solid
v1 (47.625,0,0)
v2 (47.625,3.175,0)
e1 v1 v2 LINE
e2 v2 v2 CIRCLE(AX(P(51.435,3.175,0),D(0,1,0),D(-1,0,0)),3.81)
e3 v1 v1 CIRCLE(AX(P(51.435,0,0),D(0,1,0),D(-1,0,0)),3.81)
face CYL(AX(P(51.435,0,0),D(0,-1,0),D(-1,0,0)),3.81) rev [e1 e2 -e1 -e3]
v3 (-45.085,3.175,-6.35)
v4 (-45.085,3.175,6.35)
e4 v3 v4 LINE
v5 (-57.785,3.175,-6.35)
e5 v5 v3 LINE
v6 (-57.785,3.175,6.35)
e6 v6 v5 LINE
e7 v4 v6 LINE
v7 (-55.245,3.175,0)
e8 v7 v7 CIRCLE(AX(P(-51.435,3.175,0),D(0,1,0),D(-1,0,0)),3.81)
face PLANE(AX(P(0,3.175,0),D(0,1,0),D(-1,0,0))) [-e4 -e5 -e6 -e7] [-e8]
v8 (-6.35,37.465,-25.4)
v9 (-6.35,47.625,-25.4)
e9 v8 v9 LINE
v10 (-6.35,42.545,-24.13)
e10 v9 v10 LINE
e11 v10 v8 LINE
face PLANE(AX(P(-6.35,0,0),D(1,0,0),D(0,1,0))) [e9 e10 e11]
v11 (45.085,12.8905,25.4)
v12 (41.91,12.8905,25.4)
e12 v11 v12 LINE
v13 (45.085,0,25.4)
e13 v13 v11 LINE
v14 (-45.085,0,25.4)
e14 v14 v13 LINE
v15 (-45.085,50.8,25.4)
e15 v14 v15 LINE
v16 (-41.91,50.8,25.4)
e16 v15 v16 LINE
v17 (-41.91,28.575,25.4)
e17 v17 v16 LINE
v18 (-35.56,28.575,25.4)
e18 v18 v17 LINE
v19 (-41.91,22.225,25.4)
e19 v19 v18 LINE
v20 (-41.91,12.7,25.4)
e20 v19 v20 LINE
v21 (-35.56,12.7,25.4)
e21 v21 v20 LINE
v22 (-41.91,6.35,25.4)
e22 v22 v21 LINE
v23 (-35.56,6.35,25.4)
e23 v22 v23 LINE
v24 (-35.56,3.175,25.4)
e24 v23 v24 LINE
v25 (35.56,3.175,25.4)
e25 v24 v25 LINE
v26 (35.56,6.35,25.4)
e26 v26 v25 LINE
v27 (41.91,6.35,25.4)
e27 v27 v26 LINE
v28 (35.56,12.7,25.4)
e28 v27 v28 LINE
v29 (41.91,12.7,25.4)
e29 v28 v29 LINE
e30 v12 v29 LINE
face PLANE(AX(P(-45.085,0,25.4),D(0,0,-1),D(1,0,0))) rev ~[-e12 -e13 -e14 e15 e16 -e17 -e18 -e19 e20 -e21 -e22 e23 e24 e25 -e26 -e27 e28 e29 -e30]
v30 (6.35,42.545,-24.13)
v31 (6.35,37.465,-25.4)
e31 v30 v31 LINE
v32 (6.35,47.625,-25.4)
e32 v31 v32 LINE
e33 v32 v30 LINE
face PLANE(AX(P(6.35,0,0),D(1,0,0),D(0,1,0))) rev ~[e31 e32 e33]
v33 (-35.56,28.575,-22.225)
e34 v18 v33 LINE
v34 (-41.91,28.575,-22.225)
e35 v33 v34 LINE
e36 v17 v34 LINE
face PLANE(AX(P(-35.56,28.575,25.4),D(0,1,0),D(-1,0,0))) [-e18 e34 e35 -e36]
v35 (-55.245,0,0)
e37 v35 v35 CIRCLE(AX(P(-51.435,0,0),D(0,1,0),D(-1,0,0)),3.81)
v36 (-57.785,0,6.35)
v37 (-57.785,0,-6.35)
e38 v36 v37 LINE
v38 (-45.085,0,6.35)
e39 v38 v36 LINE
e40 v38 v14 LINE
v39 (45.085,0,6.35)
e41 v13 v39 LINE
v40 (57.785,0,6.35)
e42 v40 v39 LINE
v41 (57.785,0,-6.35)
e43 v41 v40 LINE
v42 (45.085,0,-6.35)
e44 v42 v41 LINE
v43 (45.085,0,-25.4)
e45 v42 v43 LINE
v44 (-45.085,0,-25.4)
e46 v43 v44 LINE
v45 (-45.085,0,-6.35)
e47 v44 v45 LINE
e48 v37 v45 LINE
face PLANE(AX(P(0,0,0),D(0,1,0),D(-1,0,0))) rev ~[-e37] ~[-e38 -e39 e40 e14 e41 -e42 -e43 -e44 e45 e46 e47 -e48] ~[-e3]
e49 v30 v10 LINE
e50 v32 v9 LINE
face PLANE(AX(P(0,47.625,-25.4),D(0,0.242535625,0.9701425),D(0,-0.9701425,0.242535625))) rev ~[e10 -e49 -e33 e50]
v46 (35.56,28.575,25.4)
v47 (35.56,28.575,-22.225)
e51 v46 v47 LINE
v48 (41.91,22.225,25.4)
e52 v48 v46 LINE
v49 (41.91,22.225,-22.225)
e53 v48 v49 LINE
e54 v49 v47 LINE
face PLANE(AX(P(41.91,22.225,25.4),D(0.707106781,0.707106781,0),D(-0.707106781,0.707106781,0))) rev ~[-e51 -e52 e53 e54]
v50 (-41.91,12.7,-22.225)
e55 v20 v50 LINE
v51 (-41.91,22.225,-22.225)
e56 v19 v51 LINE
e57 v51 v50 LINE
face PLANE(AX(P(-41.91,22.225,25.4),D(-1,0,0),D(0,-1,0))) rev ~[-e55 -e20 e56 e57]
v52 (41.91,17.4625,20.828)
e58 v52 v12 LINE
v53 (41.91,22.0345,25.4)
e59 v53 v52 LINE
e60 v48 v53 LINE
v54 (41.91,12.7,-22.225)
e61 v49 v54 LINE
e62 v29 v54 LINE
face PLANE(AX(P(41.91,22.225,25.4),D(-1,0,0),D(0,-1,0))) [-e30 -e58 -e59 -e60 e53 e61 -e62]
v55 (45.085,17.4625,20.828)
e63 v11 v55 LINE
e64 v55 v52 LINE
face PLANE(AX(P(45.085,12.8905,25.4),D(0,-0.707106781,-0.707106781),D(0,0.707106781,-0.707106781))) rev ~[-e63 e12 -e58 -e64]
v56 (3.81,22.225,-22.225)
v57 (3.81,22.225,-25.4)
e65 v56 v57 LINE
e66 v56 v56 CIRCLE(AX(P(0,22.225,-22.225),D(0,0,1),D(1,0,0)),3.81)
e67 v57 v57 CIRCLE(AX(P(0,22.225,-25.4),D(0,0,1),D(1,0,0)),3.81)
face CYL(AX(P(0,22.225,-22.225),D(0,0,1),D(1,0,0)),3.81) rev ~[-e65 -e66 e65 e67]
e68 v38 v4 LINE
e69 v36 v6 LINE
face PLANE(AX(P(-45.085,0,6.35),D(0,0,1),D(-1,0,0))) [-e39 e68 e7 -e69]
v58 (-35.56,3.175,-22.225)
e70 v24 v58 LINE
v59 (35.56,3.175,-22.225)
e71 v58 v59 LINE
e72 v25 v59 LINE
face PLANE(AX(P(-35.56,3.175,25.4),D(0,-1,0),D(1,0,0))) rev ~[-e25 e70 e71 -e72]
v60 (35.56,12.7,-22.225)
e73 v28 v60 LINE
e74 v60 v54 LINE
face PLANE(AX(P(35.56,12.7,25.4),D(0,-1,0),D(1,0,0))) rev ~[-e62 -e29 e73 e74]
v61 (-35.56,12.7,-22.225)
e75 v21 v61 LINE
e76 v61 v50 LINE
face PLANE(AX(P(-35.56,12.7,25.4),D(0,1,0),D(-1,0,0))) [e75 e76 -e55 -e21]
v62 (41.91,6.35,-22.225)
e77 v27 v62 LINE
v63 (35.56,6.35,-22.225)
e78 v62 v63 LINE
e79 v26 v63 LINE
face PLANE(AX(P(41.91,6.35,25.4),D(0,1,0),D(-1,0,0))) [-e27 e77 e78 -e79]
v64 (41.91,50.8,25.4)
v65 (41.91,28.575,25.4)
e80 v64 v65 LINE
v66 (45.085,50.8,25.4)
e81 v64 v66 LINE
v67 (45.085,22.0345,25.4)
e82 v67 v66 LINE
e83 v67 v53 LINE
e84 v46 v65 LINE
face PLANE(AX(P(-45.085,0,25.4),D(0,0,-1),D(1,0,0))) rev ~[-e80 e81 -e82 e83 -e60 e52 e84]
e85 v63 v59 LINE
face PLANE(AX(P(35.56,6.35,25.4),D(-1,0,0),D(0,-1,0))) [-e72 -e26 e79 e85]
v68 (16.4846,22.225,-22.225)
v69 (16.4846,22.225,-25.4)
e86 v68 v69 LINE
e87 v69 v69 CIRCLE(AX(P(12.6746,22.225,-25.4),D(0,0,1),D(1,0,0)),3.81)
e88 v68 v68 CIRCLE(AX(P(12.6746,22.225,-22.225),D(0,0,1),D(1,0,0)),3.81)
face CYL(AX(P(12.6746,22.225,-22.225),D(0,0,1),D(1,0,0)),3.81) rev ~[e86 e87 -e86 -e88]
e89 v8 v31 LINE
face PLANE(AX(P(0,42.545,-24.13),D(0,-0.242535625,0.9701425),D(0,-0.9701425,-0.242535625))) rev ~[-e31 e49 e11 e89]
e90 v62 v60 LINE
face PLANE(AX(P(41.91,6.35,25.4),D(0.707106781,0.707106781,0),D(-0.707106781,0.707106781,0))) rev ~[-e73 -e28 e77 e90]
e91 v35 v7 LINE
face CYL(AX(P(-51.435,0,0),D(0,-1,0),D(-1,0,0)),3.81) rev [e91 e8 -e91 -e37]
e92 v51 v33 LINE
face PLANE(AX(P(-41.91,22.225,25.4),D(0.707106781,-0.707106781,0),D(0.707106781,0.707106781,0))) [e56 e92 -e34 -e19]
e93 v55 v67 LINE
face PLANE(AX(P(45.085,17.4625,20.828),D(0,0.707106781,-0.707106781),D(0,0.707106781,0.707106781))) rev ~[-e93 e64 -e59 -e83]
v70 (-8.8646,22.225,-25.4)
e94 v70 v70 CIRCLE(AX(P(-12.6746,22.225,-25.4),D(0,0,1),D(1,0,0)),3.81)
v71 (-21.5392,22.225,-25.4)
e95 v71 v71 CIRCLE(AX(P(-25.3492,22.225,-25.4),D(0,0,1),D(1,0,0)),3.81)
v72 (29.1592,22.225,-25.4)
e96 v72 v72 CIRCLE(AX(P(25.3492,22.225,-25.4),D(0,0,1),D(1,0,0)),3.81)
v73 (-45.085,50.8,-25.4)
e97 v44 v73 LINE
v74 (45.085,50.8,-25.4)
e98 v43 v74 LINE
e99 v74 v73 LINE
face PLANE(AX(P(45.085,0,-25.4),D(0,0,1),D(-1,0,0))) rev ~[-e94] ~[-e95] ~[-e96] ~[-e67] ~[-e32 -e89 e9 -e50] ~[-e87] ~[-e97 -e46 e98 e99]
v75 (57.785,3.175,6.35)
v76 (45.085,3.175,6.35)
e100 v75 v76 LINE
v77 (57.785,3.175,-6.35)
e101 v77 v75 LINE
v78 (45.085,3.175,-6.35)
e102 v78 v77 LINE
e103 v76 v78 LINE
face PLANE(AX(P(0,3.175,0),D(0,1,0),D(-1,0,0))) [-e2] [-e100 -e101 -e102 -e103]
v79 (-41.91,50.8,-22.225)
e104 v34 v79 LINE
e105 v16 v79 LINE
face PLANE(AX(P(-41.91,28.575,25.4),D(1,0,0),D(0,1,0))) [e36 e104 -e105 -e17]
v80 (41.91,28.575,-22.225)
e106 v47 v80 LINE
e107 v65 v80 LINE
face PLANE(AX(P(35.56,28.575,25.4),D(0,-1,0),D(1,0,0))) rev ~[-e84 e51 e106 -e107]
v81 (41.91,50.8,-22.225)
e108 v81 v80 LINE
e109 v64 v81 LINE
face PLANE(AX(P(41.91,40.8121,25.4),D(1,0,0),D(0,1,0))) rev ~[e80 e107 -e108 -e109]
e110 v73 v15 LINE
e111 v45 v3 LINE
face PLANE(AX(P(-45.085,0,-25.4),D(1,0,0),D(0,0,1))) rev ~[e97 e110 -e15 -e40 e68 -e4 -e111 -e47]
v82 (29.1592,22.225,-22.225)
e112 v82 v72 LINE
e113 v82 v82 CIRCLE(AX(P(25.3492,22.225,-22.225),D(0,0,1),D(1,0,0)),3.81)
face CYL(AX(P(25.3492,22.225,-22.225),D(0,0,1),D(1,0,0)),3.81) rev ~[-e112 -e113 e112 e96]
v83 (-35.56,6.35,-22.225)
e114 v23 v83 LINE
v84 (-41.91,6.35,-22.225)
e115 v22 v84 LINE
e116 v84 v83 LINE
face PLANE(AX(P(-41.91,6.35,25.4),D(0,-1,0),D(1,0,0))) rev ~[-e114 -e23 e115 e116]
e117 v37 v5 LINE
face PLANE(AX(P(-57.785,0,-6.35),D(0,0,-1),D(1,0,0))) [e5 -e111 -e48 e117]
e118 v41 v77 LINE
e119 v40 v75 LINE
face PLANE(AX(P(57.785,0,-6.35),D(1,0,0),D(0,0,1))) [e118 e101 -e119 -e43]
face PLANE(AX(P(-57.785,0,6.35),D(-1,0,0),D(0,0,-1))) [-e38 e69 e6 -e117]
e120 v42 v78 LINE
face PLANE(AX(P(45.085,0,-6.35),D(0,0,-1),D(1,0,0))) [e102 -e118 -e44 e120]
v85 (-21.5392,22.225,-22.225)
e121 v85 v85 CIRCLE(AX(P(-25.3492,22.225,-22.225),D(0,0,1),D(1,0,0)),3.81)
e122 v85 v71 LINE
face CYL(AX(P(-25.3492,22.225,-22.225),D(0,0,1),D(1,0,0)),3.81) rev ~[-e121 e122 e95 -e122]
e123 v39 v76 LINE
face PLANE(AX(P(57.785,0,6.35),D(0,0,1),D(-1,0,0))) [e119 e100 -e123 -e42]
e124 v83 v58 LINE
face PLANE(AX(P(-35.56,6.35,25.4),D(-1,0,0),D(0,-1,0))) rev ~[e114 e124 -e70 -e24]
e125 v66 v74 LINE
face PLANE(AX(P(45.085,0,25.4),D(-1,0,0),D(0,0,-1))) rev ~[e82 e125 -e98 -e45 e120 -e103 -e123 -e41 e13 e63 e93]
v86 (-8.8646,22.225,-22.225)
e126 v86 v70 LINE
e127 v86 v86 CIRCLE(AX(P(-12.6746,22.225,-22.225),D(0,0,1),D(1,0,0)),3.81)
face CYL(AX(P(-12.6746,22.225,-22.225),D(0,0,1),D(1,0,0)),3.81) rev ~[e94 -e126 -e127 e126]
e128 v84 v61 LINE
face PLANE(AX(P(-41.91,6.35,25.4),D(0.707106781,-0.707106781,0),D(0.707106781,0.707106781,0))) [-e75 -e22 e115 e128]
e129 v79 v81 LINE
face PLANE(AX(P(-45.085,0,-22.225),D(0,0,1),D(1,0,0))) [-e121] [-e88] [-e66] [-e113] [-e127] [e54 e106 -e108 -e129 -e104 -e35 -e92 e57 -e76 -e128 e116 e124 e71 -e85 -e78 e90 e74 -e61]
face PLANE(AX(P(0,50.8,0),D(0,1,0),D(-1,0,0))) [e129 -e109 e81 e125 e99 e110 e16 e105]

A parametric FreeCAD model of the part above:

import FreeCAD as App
import Part
import Sketcher
from FreeCAD import Vector
Q = App.Units.Quantity

doc = App.newDocument("Part")
params = doc.addObject("Spreadsheet::Sheet", "Params")
for row, (alias, value) in enumerate([
    ("sketch1_height", "2 in"),
    ("sketch1_width", "3.55 in"),
    ("pad1_length", "2 in"),
    ("sketch2_diameter", "0.3 in"),
    ("sketch2_width", "0.5 in"),
    ("pad2_length", "0.125 in"),
    ("sketch3_width", "0.25 in"),
    ("sketch3_height", "0.125 in"),
    ("sketch3_width2", "2.8 in"),
    ("pocket1_length", "1.875 in"),
    ("sketch4_diameter", "0.3 in"),
    ("pocket2_length", "1.875 in"),
    ("sketch5_width", "0.4 in"),
    ("pocket3_length", "0.5 in"),
    ("pocket4_length", "1 in"),
], start=1):
    params.set(f"A{row}", alias)
    params.set(f"B{row}", "=" + value)
    params.setAlias(f"B{row}", alias)

body = doc.addObject("PartDesign::Body", "Body")

sketch1 = body.newObject("Sketcher::SketchObject", "Sketch")
sketch1.AttachmentSupport = (doc.getObject("XZ_Plane"), [""])
sketch1.MapMode = "FlatFace"
sketch1.addGeometry([
    Part.LineSegment(Vector(-45, -25, 0), Vector(-45, 25, 0)),
    Part.LineSegment(Vector(-45, 25, 0), Vector(45, 25, 0)),
    Part.LineSegment(Vector(45, 25, 0), Vector(45, -25, 0)),
    Part.LineSegment(Vector(45, -25, 0), Vector(-45, -25, 0)),
], False)
sketch1.addConstraint([
    Sketcher.Constraint("Coincident", 0, 2, 1, 1),
    Sketcher.Constraint("Coincident", 1, 2, 2, 1),
    Sketcher.Constraint("Coincident", 2, 2, 3, 1),
    Sketcher.Constraint("Coincident", 3, 2, 0, 1),
    Sketcher.Constraint("Vertical", 0),
    Sketcher.Constraint("Horizontal", 1),
    Sketcher.Constraint("Vertical", 2),
    Sketcher.Constraint("Horizontal", 3),
    Sketcher.Constraint("Symmetric", 0, 2, 2, 2, -1, 1),
    Sketcher.Constraint("DistanceY", 0, 1, 0, 2, Q("2 in")),
    Sketcher.Constraint("DistanceX", 1, 1, 1, 2, Q("3.55 in")),
])
sketch1.setExpression("Constraints[9]", "Params.sketch1_height")
sketch1.setExpression("Constraints[10]", "Params.sketch1_width")
pad1 = body.newObject("PartDesign::Pad", "Pad")
pad1.Profile = sketch1
pad1.setExpression("Length", "Params.pad1_length")
pad1.Reversed = True

sketch2 = body.newObject("Sketcher::SketchObject", "Sketch001")
sketch2.AttachmentSupport = (doc.getObject("XZ_Plane"), [""])
sketch2.MapMode = "FlatFace"
sketch2.addGeometry([
    Part.LineSegment(Vector(-45.1, 6.3, 0), Vector(-45.1, -6.3, 0)),
    Part.LineSegment(Vector(-45.1, -6.3, 0), Vector(-57.8, -6.3, 0)),
    Part.LineSegment(Vector(-57.8, -6.3, 0), Vector(-57.8, 6.3, 0)),
    Part.LineSegment(Vector(-57.8, 6.3, 0), Vector(-45.1, 6.3, 0)),
    Part.Circle(Vector(-51.4, 0, 0), Vector(0, 0, 1), 3.8),
    Part.LineSegment(Vector(45.1, -6.3, 0), Vector(45.1, 6.3, 0)),
    Part.LineSegment(Vector(45.1, 6.3, 0), Vector(57.8, 6.3, 0)),
    Part.LineSegment(Vector(57.8, 6.3, 0), Vector(57.8, -6.3, 0)),
    Part.LineSegment(Vector(57.8, -6.3, 0), Vector(45.1, -6.3, 0)),
    Part.Circle(Vector(51.4, 0, 0), Vector(0, 0, 1), 3.8),
], False)
sketch2.addConstraint([
    Sketcher.Constraint("Coincident", 0, 2, 1, 1),
    Sketcher.Constraint("Coincident", 1, 2, 2, 1),
    Sketcher.Constraint("Coincident", 2, 2, 3, 1),
    Sketcher.Constraint("Coincident", 3, 2, 0, 1),
    Sketcher.Constraint("Coincident", 5, 2, 6, 1),
    Sketcher.Constraint("Coincident", 6, 2, 7, 1),
    Sketcher.Constraint("Coincident", 7, 2, 8, 1),
    Sketcher.Constraint("Coincident", 8, 2, 5, 1),
    Sketcher.Constraint("Vertical", 0),
    Sketcher.Constraint("Horizontal", 1),
    Sketcher.Constraint("Vertical", 2),
    Sketcher.Constraint("Horizontal", 3),
    Sketcher.Constraint("Vertical", 5),
    Sketcher.Constraint("Horizontal", 6),
    Sketcher.Constraint("Vertical", 7),
    Sketcher.Constraint("Horizontal", 8),
    Sketcher.Constraint("Equal", 4, 9),
    Sketcher.Constraint("Symmetric", 4, 3, 9, 3, -1, 1),
    Sketcher.Constraint("Symmetric", 0, 2, 5, 2, -1, 1),
    Sketcher.Constraint("Symmetric", 2, 2, 7, 2, -1, 1),
    Sketcher.Constraint("PointOnObject", 4, 3, -1),
    Sketcher.Constraint("Horizontal", 3, 2, 5, 2),
    Sketcher.Constraint("Equal", 8, 0),
    Sketcher.Constraint("Diameter", 4, Q("0.3 in")),
    Sketcher.Constraint("DistanceX", 1, 2, 1, 1, Q("0.5 in")),
    Sketcher.Constraint("DistanceX", 4, 3, 0, 2, Q("0.25 in")),
    Sketcher.Constraint("DistanceX", 0, 2, 9, 3, Q("3.8 in")),
])
sketch2.setExpression("Constraints[23]", "Params.sketch2_diameter")
sketch2.setExpression("Constraints[24]", "Params.sketch2_width")
pad2 = body.newObject("PartDesign::Pad", "Pad001")
pad2.Profile = sketch2
pad2.setExpression("Length", "Params.pad2_length")
pad2.Reversed = True

sketch3 = body.newObject("Sketcher::SketchObject", "Sketch002")
sketch3.AttachmentSupport = (doc.getObject("XY_Plane"), [""])
sketch3.MapMode = "FlatFace"
sketch3.AttachmentOffset = App.Placement(Vector(0, 0, 1 * 25.4), App.Rotation())
sketch3.addGeometry([
    Part.LineSegment(Vector(-35.6, 6.3, 0), Vector(-35.6, 3.2, 0)),
    Part.LineSegment(Vector(-35.6, 3.2, 0), Vector(35.6, 3.2, 0)),
    Part.LineSegment(Vector(35.6, 3.2, 0), Vector(35.6, 6.3, 0)),
    Part.LineSegment(Vector(35.6, 6.3, 0), Vector(41.9, 6.3, 0)),
    Part.LineSegment(Vector(41.9, 6.3, 0), Vector(35.6, 12.7, 0)),
    Part.LineSegment(Vector(35.6, 12.7, 0), Vector(41.9, 12.7, 0)),
    Part.LineSegment(Vector(41.9, 12.7, 0), Vector(41.9, 22.2, 0)),
    Part.LineSegment(Vector(41.9, 22.2, 0), Vector(35.6, 28.6, 0)),
    Part.LineSegment(Vector(35.6, 28.6, 0), Vector(41.9, 28.6, 0)),
    Part.LineSegment(Vector(41.9, 28.6, 0), Vector(41.9, 50.8, 0)),
    Part.LineSegment(Vector(41.9, 50.8, 0), Vector(-41.9, 50.8, 0)),
    Part.LineSegment(Vector(-41.9, 50.8, 0), Vector(-41.9, 28.6, 0)),
    Part.LineSegment(Vector(-41.9, 28.6, 0), Vector(-35.6, 28.6, 0)),
    Part.LineSegment(Vector(-35.6, 28.6, 0), Vector(-41.9, 22.2, 0)),
    Part.LineSegment(Vector(-41.9, 22.2, 0), Vector(-41.9, 12.7, 0)),
    Part.LineSegment(Vector(-41.9, 12.7, 0), Vector(-35.6, 12.7, 0)),
    Part.LineSegment(Vector(-35.6, 12.7, 0), Vector(-41.9, 6.3, 0)),
    Part.LineSegment(Vector(-41.9, 6.3, 0), Vector(-35.6, 6.3, 0)),
], False)
sketch3.addConstraint([
    Sketcher.Constraint("Coincident", 0, 2, 1, 1),
    Sketcher.Constraint("Coincident", 1, 2, 2, 1),
    Sketcher.Constraint("Coincident", 2, 2, 3, 1),
    Sketcher.Constraint("Coincident", 3, 2, 4, 1),
    Sketcher.Constraint("Coincident", 4, 2, 5, 1),
    Sketcher.Constraint("Coincident", 5, 2, 6, 1),
    Sketcher.Constraint("Coincident", 6, 2, 7, 1),
    Sketcher.Constraint("Coincident", 7, 2, 8, 1),
    Sketcher.Constraint("Coincident", 8, 2, 9, 1),
    Sketcher.Constraint("Coincident", 9, 2, 10, 1),
    Sketcher.Constraint("Coincident", 10, 2, 11, 1),
    Sketcher.Constraint("Coincident", 11, 2, 12, 1),
    Sketcher.Constraint("Coincident", 12, 2, 13, 1),
    Sketcher.Constraint("Coincident", 13, 2, 14, 1),
    Sketcher.Constraint("Coincident", 14, 2, 15, 1),
    Sketcher.Constraint("Coincident", 15, 2, 16, 1),
    Sketcher.Constraint("Coincident", 16, 2, 17, 1),
    Sketcher.Constraint("Coincident", 17, 2, 0, 1),
    Sketcher.Constraint("Vertical", 0),
    Sketcher.Constraint("Horizontal", 1),
    Sketcher.Constraint("Vertical", 2),
    Sketcher.Constraint("Horizontal", 3),
    Sketcher.Constraint("Horizontal", 5),
    Sketcher.Constraint("Vertical", 6),
    Sketcher.Constraint("Horizontal", 8),
    Sketcher.Constraint("Vertical", 9),
    Sketcher.Constraint("Horizontal", 10),
    Sketcher.Constraint("Vertical", 11),
    Sketcher.Constraint("Horizontal", 12),
    Sketcher.Constraint("Vertical", 14),
    Sketcher.Constraint("Horizontal", 15),
    Sketcher.Constraint("Horizontal", 17),
    Sketcher.Constraint("Symmetric", 8, 2, 11, 2, -2),
    Sketcher.Constraint("Symmetric", 6, 2, 13, 2, -2),
    Sketcher.Constraint("Symmetric", 4, 2, 15, 2, -2),
    Sketcher.Constraint("Symmetric", 3, 2, 16, 2, -2),
    Sketcher.Constraint("Parallel", 4, 7),
    Sketcher.Constraint("Perpendicular", 7, 13),
    Sketcher.Constraint("Parallel", 13, 16),
    Sketcher.Constraint("Vertical", 2, 2, 4, 2),
    Sketcher.Constraint("Vertical", 3, 2, 5, 2),
    Sketcher.Constraint("Vertical", 4, 2, 7, 2),
    Sketcher.Constraint("Vertical", 6, 2, 8, 2),
    Sketcher.Constraint("Vertical", 0, 2, 12, 2),
    Sketcher.Constraint("DistanceY", 0, 2, 11, 2, Q("1 in")),
    Sketcher.Constraint("DistanceX", 3, 1, 3, 2, Q("0.25 in")),
    Sketcher.Constraint("DistanceY", 0, 2, 0, 1, Q("0.125 in")),
    Sketcher.Constraint("DistanceY", -1, 1, 2, 2, Q("0.25 in")),
    Sketcher.Constraint("DistanceX", 1, 1, 1, 2, Q("2.8 in")),
    Sketcher.Constraint("DistanceY", -1, 1, 9, 2, Q("2 in")),
])
sketch3.setExpression("Constraints[45]", "Params.sketch3_width")
sketch3.setExpression("Constraints[46]", "Params.sketch3_height")
sketch3.setExpression("Constraints[48]", "Params.sketch3_width2")
pocket1 = body.newObject("PartDesign::Pocket", "Pocket")
pocket1.Profile = sketch3
pocket1.setExpression("Length", "Params.pocket1_length")

sketch4 = body.newObject("Sketcher::SketchObject", "Sketch003")
sketch4.AttachmentSupport = (doc.getObject("XY_Plane"), [""])
sketch4.MapMode = "FlatFace"
sketch4.AttachmentOffset = App.Placement(Vector(0, 0, -0.875 * 25.4), App.Rotation())
sketch4.addGeometry([
    Part.Circle(Vector(-25.3, 22.2, 0), Vector(0, 0, 1), 3.8),
    Part.Circle(Vector(-12.7, 22.2, 0), Vector(0, 0, 1), 3.8),
    Part.Circle(Vector(0, 22.2, 0), Vector(0, 0, 1), 3.8),
    Part.Circle(Vector(12.7, 22.2, 0), Vector(0, 0, 1), 3.8),
    Part.Circle(Vector(25.3, 22.2, 0), Vector(0, 0, 1), 3.8),
], False)
sketch4.addConstraint([
    Sketcher.Constraint("Equal", 0, 1),
    Sketcher.Constraint("Equal", 1, 2),
    Sketcher.Constraint("Equal", 2, 3),
    Sketcher.Constraint("Equal", 3, 4),
    Sketcher.Constraint("Symmetric", 1, 3, 3, 3, -2),
    Sketcher.Constraint("Symmetric", 0, 3, 4, 3, -2),
    Sketcher.Constraint("PointOnObject", 2, 3, -2),
    Sketcher.Constraint("Horizontal", 0, 3, 1, 3),
    Sketcher.Constraint("Horizontal", 1, 3, 2, 3),
    Sketcher.Constraint("Diameter", 0, Q("0.3 in")),
    Sketcher.Constraint("DistanceY", -1, 1, 0, 3, Q("0.875 in")),
    Sketcher.Constraint("DistanceX", 1, 3, -1, 1, Q("0.499 in")),
    Sketcher.Constraint("DistanceX", 0, 3, 1, 3, Q("0.499 in")),
])
sketch4.setExpression("Constraints[9]", "Params.sketch4_diameter")
pocket2 = body.newObject("PartDesign::Pocket", "Pocket001")
pocket2.Profile = sketch4
pocket2.setExpression("Length", "Params.pocket2_length")

sketch5 = body.newObject("Sketcher::SketchObject", "Sketch004")
sketch5.AttachmentSupport = (doc.getObject("YZ_Plane"), [""])
sketch5.MapMode = "FlatFace"
sketch5.addGeometry([
    Part.LineSegment(Vector(43, -24, 0), Vector(37, -25, 0)),
    Part.LineSegment(Vector(37, -25, 0), Vector(48, -25, 0)),
    Part.LineSegment(Vector(48, -25, 0), Vector(43, -24, 0)),
], False)
sketch5.addConstraint([
    Sketcher.Constraint("Coincident", 0, 2, 1, 1),
    Sketcher.Constraint("Coincident", 1, 2, 2, 1),
    Sketcher.Constraint("Coincident", 2, 2, 0, 1),
    Sketcher.Constraint("Horizontal", 1),
    Sketcher.Constraint("Equal", 0, 2),
    Sketcher.Constraint("DistanceX", 1, 1, 1, 2, Q("0.4 in")),
    Sketcher.Constraint("DistanceY", 0, 2, 2, 2, Q("0.05 in")),
    Sketcher.Constraint("DistanceY", 0, 2, -1, 1, Q("1 in")),
    Sketcher.Constraint("DistanceX", -1, 1, 0, 2, Q("1.475 in")),
])
sketch5.setExpression("Constraints[5]", "Params.sketch5_width")
pocket3 = body.newObject("PartDesign::Pocket", "Pocket002")
pocket3.Profile = sketch5
pocket3.setExpression("Length", "Params.pocket3_length")
pocket3.Midplane = True

sketch6 = body.newObject("Sketcher::SketchObject", "Sketch005")
sketch6.AttachmentSupport = (doc.getObject("YZ_Plane"), [""])
sketch6.MapMode = "FlatFace"
sketch6.AttachmentOffset = App.Placement(Vector(0, 0, 1.775 * 25.4), App.Rotation())
sketch6.addGeometry([
    Part.LineSegment(Vector(22, 25, 0), Vector(13, 25, 0)),
    Part.LineSegment(Vector(13, 25, 0), Vector(17, 21, 0)),
    Part.LineSegment(Vector(17, 21, 0), Vector(22, 25, 0)),
], False)
sketch6.addConstraint([
    Sketcher.Constraint("Coincident", 0, 2, 1, 1),
    Sketcher.Constraint("Coincident", 1, 2, 2, 1),
    Sketcher.Constraint("Coincident", 2, 2, 0, 1),
    Sketcher.Constraint("Horizontal", 0),
    Sketcher.Constraint("Perpendicular", 1, 2),
    Sketcher.Constraint("Equal", 1, 2),
    Sketcher.Constraint("DistanceX", 0, 2, 1, 2, Q("0.18 in")),
    Sketcher.Constraint("DistanceY", -1, 1, 0, 2, Q("1 in")),
    Sketcher.Constraint("DistanceX", -1, 1, 1, 2, Q("0.6875 in")),
])
pocket4 = body.newObject("PartDesign::Pocket", "Pocket003")
pocket4.Profile = sketch6
pocket4.setExpression("Length", "Params.pocket4_length")

doc.recompute()
